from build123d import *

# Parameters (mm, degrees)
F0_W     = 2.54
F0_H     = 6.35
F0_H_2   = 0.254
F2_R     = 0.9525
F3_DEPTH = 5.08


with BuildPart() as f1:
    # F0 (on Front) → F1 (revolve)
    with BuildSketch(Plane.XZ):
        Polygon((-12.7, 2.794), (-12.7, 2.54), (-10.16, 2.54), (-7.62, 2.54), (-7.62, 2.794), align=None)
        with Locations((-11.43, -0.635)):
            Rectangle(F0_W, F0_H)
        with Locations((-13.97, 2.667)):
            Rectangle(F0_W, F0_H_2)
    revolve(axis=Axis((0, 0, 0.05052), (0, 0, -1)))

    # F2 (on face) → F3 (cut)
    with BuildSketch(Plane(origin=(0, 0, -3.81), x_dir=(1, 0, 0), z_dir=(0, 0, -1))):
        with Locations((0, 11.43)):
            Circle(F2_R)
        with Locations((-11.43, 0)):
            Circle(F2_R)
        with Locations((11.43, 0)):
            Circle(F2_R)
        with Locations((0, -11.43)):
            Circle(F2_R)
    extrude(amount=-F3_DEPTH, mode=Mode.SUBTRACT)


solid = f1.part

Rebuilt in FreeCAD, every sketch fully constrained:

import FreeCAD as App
import Part
import Sketcher
from FreeCAD import Vector
Q = App.Units.Quantity

doc = App.newDocument("Part")
params = doc.addObject("Spreadsheet::Sheet", "Params")
for row, (alias, value) in enumerate([
    ("sketch1_width", "0.1 in"),
    ("sketch1_height", "0.25 in"),
    ("sketch1_height2", "0.01 in"),
    ("revolution_angle", "360 deg"),
    ("sketch2_diameter", "0.075 in"),
    ("pocket1_length", "0.2 in"),
], start=1):
    params.set(f"A{row}", alias)
    params.set(f"B{row}", "=" + value)
    params.setAlias(f"B{row}", alias)

body = doc.addObject("PartDesign::Body", "Body")

sketch1 = body.newObject("Sketcher::SketchObject", "Sketch")
sketch1.AttachmentSupport = (doc.getObject("XZ_Plane"), [""])
sketch1.MapMode = "FlatFace"
sketch1.addGeometry([
    Part.LineSegment(Vector(-12.7, 2.54, 0), Vector(-12.7, -3.81, 0)),
    Part.LineSegment(Vector(-12.7, -3.81, 0), Vector(-10.16, -3.81, 0)),
    Part.LineSegment(Vector(-10.16, -3.81, 0), Vector(-10.16, 2.54, 0)),
    Part.LineSegment(Vector(-10.16, 2.54, 0), Vector(-7.62, 2.54, 0)),
    Part.LineSegment(Vector(-7.62, 2.54, 0), Vector(-7.62, 2.79, 0)),
    Part.LineSegment(Vector(-7.62, 2.79, 0), Vector(-15.24, 2.79, 0)),
    Part.LineSegment(Vector(-15.24, 2.79, 0), Vector(-15.24, 2.54, 0)),
    Part.LineSegment(Vector(-15.24, 2.54, 0), Vector(-12.7, 2.54, 0)),
], False)
sketch1.addConstraint([
    Sketcher.Constraint("Coincident", 0, 2, 1, 1),
    Sketcher.Constraint("Coincident", 1, 2, 2, 1),
    Sketcher.Constraint("Coincident", 2, 2, 3, 1),
    Sketcher.Constraint("Coincident", 3, 2, 4, 1),
    Sketcher.Constraint("Coincident", 4, 2, 5, 1),
    Sketcher.Constraint("Coincident", 5, 2, 6, 1),
    Sketcher.Constraint("Coincident", 6, 2, 7, 1),
    Sketcher.Constraint("Coincident", 7, 2, 0, 1),
    Sketcher.Constraint("Vertical", 0),
    Sketcher.Constraint("Horizontal", 1),
    Sketcher.Constraint("Vertical", 2),
    Sketcher.Constraint("Horizontal", 3),
    Sketcher.Constraint("Vertical", 4),
    Sketcher.Constraint("Horizontal", 5),
    Sketcher.Constraint("Vertical", 6),
    Sketcher.Constraint("Horizontal", 7),
    Sketcher.Constraint("Horizontal", 3, 2, 6, 2),
    Sketcher.Constraint("Equal", 1, 3),
    Sketcher.Constraint("Equal", 3, 7),
    Sketcher.Constraint("DistanceX", 1, 1, 1, 2, Q("0.1 in")),
    Sketcher.Constraint("DistanceY", 0, 2, 0, 1, Q("0.25 in")),
    Sketcher.Constraint("DistanceY", 4, 1, 4, 2, Q("0.01 in")),
    Sketcher.Constraint("DistanceX", 0, 2, -1, 1, Q("0.5 in")),
    Sketcher.Constraint("DistanceY", -1, 1, 2, 2, Q("0.1 in")),
])
sketch1.setExpression("Constraints[19]", "Params.sketch1_width")
sketch1.setExpression("Constraints[20]", "Params.sketch1_height")
sketch1.setExpression("Constraints[21]", "Params.sketch1_height2")
revolution = body.newObject("PartDesign::Revolution", "Revolution")
revolution.Profile = sketch1
revolution.ReferenceAxis = (sketch1, ["V_Axis"])
revolution.setExpression("Angle", "Params.revolution_angle")

sketch2 = body.newObject("Sketcher::SketchObject", "Sketch001")
sketch2.AttachmentSupport = (doc.getObject("XY_Plane"), [""])
sketch2.MapMode = "FlatFace"
sketch2.AttachmentOffset = App.Placement(Vector(0, 0, -0.15 * 25.4), App.Rotation())
sketch2.addGeometry([
    Part.Circle(Vector(0, -11.4, 0), Vector(0, 0, 1), 1),
    Part.Circle(Vector(-11.4, 0, 0), Vector(0, 0, 1), 1),
    Part.Circle(Vector(11.4, 0, 0), Vector(0, 0, 1), 1),
    Part.Circle(Vector(0, 11.4, 0), Vector(0, 0, 1), 1),
], False)
sketch2.addConstraint([
    Sketcher.Constraint("Equal", 0, 1),
    Sketcher.Constraint("Equal", 1, 2),
    Sketcher.Constraint("Equal", 2, 3),
    Sketcher.Constraint("Symmetric", 1, 3, 2, 3, -1, 1),
    Sketcher.Constraint("Symmetric", 0, 3, 3, 3, -1, 1),
    Sketcher.Constraint("PointOnObject", 0, 3, -2),
    Sketcher.Constraint("PointOnObject", 1, 3, -1),
    Sketcher.Constraint("Diameter", 0, Q("0.075 in")),
    Sketcher.Constraint("DistanceX", 1, 3, 2, 3, Q("0.9 in")),
    Sketcher.Constraint("DistanceY", 0, 3, 3, 3, Q("0.9 in")),
])
sketch2.setExpression("Constraints[7]", "Params.sketch2_diameter")
pocket1 = body.newObject("PartDesign::Pocket", "Pocket")
pocket1.Profile = sketch2
pocket1.setExpression("Length", "Params.pocket1_length")
pocket1.Reversed = True

doc.recompute()
